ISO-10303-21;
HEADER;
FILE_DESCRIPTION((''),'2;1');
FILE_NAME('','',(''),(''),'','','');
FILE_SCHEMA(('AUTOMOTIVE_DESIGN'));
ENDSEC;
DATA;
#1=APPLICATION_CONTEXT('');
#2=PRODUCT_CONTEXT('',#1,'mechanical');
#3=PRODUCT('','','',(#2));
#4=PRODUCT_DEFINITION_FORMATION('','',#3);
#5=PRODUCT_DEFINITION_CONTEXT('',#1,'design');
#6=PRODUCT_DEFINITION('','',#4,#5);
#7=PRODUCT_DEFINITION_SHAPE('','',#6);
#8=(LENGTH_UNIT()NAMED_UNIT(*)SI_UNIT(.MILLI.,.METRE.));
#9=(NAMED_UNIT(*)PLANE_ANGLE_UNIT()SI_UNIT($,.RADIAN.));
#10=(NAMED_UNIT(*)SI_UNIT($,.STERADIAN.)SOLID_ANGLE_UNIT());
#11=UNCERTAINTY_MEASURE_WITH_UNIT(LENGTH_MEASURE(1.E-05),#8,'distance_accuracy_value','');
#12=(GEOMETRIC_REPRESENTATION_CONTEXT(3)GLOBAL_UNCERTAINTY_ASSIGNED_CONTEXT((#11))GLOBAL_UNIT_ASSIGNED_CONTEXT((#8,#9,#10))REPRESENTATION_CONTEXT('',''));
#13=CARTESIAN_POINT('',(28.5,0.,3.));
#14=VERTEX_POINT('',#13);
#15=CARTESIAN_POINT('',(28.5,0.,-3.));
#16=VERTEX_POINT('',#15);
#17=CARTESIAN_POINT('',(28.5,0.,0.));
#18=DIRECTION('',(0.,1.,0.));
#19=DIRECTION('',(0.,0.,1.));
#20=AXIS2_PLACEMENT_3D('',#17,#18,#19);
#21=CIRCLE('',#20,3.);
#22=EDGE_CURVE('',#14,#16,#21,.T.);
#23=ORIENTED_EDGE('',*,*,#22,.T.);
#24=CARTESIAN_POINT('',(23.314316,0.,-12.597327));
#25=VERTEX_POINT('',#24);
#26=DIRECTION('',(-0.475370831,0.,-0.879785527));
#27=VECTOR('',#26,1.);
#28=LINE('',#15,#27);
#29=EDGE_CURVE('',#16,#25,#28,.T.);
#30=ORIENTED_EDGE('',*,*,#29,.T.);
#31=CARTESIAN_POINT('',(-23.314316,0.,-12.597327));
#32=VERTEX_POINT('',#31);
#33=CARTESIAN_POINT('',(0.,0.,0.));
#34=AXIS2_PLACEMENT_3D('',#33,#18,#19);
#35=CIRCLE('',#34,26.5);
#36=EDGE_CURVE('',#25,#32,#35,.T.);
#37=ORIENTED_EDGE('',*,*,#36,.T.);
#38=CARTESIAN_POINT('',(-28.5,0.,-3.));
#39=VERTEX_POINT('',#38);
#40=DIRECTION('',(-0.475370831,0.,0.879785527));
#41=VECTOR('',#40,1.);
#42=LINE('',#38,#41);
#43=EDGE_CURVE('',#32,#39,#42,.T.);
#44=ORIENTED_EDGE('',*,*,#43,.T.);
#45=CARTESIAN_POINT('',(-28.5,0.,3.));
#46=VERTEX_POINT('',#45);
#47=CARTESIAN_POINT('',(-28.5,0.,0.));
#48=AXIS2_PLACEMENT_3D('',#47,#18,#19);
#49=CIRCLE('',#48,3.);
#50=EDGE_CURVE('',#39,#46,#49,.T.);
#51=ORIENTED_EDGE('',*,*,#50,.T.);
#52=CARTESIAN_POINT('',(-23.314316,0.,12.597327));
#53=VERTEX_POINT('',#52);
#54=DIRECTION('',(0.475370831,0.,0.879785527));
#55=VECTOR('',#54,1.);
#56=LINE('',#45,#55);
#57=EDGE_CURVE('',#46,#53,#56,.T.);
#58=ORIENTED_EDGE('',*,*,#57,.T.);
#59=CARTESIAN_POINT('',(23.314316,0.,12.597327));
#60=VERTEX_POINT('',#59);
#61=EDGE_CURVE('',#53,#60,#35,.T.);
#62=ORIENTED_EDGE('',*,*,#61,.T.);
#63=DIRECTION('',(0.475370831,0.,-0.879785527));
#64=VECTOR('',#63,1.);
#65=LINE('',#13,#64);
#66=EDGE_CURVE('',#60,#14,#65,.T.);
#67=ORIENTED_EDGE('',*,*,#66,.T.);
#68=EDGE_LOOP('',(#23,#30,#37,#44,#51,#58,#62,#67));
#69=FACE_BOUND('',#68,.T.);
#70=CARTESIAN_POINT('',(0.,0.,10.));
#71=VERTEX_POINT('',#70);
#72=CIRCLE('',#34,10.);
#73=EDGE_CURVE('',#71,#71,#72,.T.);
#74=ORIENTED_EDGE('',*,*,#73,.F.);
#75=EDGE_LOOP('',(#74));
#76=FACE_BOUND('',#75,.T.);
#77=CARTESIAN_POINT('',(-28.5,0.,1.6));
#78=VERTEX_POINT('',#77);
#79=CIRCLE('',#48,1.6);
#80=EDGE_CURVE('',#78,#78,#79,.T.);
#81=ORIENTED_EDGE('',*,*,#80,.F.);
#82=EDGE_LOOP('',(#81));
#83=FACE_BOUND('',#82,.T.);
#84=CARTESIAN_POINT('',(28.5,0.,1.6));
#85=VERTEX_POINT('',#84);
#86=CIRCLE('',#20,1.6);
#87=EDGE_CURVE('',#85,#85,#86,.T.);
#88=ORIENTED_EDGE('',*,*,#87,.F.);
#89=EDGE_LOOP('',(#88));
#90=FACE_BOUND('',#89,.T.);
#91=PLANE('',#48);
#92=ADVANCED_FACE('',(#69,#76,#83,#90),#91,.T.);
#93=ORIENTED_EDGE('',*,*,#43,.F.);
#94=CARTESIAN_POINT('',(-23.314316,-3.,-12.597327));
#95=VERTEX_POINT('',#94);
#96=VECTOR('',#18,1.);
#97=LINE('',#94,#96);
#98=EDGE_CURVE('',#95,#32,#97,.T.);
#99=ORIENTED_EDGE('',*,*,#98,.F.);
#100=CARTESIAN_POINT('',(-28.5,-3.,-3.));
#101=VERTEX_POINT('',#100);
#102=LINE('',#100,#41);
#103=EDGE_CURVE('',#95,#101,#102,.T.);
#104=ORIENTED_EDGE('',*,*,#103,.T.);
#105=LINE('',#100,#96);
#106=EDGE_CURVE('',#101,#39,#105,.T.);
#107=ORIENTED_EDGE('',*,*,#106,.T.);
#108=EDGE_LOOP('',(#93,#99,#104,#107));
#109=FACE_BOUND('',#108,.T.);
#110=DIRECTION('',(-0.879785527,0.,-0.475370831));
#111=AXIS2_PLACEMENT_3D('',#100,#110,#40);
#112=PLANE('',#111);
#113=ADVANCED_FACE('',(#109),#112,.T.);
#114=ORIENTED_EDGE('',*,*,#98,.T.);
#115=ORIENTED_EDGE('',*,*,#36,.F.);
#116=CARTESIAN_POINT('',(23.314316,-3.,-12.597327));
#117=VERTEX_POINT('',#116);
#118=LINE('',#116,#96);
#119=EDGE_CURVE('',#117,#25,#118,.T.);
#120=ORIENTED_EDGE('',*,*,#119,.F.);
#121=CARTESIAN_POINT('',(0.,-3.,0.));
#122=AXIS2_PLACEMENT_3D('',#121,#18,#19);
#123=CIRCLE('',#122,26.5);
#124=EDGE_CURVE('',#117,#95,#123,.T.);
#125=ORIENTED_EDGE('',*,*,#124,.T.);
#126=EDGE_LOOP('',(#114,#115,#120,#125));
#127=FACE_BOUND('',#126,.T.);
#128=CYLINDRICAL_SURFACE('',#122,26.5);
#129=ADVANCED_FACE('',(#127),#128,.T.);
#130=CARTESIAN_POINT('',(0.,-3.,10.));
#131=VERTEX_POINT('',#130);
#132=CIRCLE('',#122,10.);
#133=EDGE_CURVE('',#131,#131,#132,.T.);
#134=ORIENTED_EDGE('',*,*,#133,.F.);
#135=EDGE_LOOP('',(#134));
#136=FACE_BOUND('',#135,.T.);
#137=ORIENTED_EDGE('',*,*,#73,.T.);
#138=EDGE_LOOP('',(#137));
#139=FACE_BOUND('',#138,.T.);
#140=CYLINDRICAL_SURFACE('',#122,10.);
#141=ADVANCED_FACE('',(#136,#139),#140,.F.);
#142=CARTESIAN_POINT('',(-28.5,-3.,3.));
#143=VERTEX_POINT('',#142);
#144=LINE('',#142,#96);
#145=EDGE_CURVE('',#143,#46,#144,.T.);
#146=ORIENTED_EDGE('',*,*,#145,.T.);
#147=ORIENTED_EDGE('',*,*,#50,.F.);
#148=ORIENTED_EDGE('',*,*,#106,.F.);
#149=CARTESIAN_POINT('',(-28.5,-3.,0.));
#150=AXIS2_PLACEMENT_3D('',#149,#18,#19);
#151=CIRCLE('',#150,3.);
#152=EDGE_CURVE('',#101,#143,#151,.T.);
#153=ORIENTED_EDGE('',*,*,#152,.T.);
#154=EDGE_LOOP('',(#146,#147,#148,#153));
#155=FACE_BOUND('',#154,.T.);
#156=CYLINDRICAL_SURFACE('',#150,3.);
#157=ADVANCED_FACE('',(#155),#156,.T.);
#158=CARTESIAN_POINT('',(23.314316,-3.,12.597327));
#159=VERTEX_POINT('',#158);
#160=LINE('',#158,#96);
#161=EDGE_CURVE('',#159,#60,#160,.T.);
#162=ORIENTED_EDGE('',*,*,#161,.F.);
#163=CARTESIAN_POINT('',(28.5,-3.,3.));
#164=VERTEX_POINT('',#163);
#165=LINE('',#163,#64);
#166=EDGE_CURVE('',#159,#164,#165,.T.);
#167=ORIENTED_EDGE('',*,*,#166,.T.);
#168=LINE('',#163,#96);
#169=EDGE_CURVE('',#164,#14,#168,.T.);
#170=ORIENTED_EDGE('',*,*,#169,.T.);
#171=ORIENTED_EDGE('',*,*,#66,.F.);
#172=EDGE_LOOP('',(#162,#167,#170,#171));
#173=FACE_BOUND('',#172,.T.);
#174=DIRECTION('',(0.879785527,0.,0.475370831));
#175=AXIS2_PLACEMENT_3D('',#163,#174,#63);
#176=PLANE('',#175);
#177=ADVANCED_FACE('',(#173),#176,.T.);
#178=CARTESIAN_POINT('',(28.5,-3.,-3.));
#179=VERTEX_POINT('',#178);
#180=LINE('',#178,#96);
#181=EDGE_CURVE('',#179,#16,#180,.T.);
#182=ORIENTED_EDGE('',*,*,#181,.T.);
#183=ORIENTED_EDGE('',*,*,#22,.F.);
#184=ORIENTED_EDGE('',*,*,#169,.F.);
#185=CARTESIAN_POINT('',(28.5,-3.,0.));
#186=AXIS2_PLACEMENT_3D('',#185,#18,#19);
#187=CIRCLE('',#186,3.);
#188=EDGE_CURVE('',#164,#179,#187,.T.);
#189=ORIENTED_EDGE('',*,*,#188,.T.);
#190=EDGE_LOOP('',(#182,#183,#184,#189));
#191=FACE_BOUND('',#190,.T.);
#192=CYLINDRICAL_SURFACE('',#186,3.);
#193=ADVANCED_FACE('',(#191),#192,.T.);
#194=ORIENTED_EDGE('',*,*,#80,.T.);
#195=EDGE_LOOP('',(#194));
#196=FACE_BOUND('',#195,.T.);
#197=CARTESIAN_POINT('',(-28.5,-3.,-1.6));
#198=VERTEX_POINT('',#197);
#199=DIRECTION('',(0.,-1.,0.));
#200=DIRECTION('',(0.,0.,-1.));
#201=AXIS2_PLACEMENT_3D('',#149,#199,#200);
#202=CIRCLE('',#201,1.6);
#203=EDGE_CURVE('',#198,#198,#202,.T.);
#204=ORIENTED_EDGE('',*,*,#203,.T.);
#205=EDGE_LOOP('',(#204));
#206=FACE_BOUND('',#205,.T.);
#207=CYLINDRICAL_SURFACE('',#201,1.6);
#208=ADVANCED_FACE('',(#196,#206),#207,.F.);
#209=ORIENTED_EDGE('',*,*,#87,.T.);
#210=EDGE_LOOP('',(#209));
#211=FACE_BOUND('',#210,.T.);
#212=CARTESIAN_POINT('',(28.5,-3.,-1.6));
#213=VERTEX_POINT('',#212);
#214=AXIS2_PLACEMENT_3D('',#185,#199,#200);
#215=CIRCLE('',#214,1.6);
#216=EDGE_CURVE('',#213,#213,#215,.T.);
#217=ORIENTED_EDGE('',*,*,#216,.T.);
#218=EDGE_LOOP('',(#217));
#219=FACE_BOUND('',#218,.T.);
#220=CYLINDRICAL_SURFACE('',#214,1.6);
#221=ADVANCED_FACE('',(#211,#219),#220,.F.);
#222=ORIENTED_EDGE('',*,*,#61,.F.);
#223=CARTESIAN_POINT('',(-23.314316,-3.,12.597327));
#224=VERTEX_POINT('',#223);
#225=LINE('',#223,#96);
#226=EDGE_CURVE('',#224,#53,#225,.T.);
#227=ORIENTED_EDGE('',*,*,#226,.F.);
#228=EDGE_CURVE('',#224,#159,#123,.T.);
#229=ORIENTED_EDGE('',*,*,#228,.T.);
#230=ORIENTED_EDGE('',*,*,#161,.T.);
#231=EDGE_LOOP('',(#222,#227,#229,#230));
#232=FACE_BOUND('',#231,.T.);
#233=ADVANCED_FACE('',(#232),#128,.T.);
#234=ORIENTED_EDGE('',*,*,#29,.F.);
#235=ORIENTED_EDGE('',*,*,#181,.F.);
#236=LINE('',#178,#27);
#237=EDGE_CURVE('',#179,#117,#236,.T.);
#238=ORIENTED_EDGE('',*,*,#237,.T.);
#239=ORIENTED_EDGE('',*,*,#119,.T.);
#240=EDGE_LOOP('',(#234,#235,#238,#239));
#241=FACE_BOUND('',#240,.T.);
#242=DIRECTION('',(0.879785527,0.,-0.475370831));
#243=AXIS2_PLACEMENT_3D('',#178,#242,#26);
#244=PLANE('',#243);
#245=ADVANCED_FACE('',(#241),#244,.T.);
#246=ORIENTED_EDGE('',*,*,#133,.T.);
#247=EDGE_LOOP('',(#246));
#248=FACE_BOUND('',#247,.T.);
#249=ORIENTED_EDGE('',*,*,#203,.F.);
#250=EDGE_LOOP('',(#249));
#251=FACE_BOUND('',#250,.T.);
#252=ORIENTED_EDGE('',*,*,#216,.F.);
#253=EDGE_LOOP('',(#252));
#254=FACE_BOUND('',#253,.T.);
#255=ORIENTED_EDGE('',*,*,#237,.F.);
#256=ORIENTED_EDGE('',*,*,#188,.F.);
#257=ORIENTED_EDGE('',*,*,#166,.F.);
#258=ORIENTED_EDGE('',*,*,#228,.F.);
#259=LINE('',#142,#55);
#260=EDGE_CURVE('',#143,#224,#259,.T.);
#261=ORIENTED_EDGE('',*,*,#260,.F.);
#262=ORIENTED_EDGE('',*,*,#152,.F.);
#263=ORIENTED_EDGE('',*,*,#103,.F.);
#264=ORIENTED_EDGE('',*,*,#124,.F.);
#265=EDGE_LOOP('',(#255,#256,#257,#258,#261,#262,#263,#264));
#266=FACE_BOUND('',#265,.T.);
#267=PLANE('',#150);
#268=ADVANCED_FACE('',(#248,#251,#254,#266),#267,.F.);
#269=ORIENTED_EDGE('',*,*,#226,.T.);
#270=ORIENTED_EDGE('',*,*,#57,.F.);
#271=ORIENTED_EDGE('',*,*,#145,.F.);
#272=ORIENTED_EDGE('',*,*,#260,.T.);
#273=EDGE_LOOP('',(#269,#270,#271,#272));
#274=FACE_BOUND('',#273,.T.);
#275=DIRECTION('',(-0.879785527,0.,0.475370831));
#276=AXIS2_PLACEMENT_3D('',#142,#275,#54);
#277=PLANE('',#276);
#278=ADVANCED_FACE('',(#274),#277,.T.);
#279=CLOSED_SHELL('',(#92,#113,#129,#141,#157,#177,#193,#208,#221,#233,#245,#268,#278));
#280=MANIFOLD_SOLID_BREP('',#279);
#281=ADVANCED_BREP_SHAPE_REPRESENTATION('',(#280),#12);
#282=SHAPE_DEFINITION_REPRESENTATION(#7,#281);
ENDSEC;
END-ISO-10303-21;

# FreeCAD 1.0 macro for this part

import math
import FreeCAD as App
import Part
import Sketcher
Q = App.Units.Quantity

doc = App.newDocument("Part")
body = doc.addObject("PartDesign::Body", "Body")

# Sketch on XZ plane
sketch1 = body.newObject("Sketcher::SketchObject", "Sketch")
sketch1.AttachmentSupport = (doc.getObject("XZ_Plane"), [""])
sketch1.MapMode = "FlatFace"
sketch1.addGeometry(Part.LineSegment(App.Vector(-23.3, -12.6, 0), App.Vector(-28.5, -3, 0)), False)
sketch1.addGeometry(Part.ArcOfCircle(Part.Circle(App.Vector(-28.5, 0, 0), App.Vector(0, 0, 1), 3), math.radians(90), math.radians(270)), False)
sketch1.addGeometry(Part.LineSegment(App.Vector(-28.5, 3, 0), App.Vector(-23.3, 12.6, 0)), False)
sketch1.addGeometry(Part.ArcOfCircle(Part.Circle(App.Vector(0, 0, 0), App.Vector(0, 0, 1), 26.5), math.radians(28), math.radians(152)), False)
sketch1.addGeometry(Part.LineSegment(App.Vector(23.3, 12.6, 0), App.Vector(28.5, 3, 0)), False)
sketch1.addGeometry(Part.ArcOfCircle(Part.Circle(App.Vector(28.5, 0, 0), App.Vector(0, 0, 1), 3), math.radians(-90), math.radians(90)), False)
sketch1.addGeometry(Part.LineSegment(App.Vector(28.5, -3, 0), App.Vector(23.3, -12.6, 0)), False)
sketch1.addGeometry(Part.ArcOfCircle(Part.Circle(App.Vector(0, 0, 0), App.Vector(0, 0, 1), 26.5), math.radians(-152), math.radians(-28)), False)
sketch1.addGeometry(Part.Circle(App.Vector(0, 0, 0), App.Vector(0, 0, 1), 10), False)
sketch1.addConstraint(Sketcher.Constraint("Coincident", 0, 2, 1, 2))
sketch1.addConstraint(Sketcher.Constraint("Coincident", 1, 1, 2, 1))
sketch1.addConstraint(Sketcher.Constraint("Tangent", 2, 2, 3, 2))
sketch1.addConstraint(Sketcher.Constraint("Tangent", 3, 1, 4, 1))
sketch1.addConstraint(Sketcher.Constraint("Coincident", 4, 2, 5, 2))
sketch1.addConstraint(Sketcher.Constraint("Coincident", 5, 1, 6, 1))
sketch1.addConstraint(Sketcher.Constraint("Tangent", 6, 2, 7, 2))
sketch1.addConstraint(Sketcher.Constraint("Tangent", 7, 1, 0, 1))
sketch1.addConstraint(Sketcher.Constraint("Coincident", 3, 3, -1, 1))
sketch1.addConstraint(Sketcher.Constraint("Coincident", 7, 3, -1, 1))
sketch1.addConstraint(Sketcher.Constraint("Coincident", 8, 3, -1, 1))
sketch1.addConstraint(Sketcher.Constraint("Equal", 1, 5))
sketch1.addConstraint(Sketcher.Constraint("Equal", 3, 7))
sketch1.addConstraint(Sketcher.Constraint("Symmetric", 1, 3, 5, 3, -1, 1))
sketch1.addConstraint(Sketcher.Constraint("Symmetric", 1, 1, 4, 2, -2))
sketch1.addConstraint(Sketcher.Constraint("Parallel", 0, 4))
sketch1.addConstraint(Sketcher.Constraint("Parallel", 2, 6))
sketch1.addConstraint(Sketcher.Constraint("Vertical", 1, 3, 0, 2))
sketch1.addConstraint(Sketcher.Constraint("Diameter", 8, Q("20 mm")))
sketch1.addConstraint(Sketcher.Constraint("Radius", 1, Q("3 mm")))
sketch1.addConstraint(Sketcher.Constraint("Radius", 3, Q("26.5 mm")))
sketch1.addConstraint(Sketcher.Constraint("DistanceX", 1, 3, 5, 3, Q("57 mm")))
pad1 = body.newObject("PartDesign::Pad", "Pad")
pad1.Profile = sketch1
pad1.Length = 3

# Sketch on XZ plane
sketch2 = body.newObject("Sketcher::SketchObject", "Sketch001")
sketch2.AttachmentSupport = (doc.getObject("XZ_Plane"), [""])
sketch2.MapMode = "FlatFace"
sketch2.AttachmentOffset = App.Placement(App.Vector(0, 0, 3), App.Rotation())
sketch2.addGeometry(Part.Circle(App.Vector(28.5, 0, 0), App.Vector(0, 0, 1), 1.6), False)
sketch2.addGeometry(Part.Circle(App.Vector(-28.5, 0, 0), App.Vector(0, 0, 1), 1.6), False)
sketch2.addConstraint(Sketcher.Constraint("Equal", 0, 1))
sketch2.addConstraint(Sketcher.Constraint("Symmetric", 0, 3, 1, 3, -1, 1))
sketch2.addConstraint(Sketcher.Constraint("PointOnObject", 0, 3, -1))
sketch2.addConstraint(Sketcher.Constraint("Diameter", 0, Q("3.2 mm")))
sketch2.addConstraint(Sketcher.Constraint("DistanceX", 1, 3, 0, 3, Q("57 mm")))
doc.recompute()
hole = body.newObject("PartDesign::Hole", "Hole")
hole.Profile = sketch2
hole.ThreadType = "None"
hole.Diameter = 3.2
hole.DepthType = "Dimension"
hole.Depth = 3
hole.DrillPoint = "Flat"

doc.recompute()
